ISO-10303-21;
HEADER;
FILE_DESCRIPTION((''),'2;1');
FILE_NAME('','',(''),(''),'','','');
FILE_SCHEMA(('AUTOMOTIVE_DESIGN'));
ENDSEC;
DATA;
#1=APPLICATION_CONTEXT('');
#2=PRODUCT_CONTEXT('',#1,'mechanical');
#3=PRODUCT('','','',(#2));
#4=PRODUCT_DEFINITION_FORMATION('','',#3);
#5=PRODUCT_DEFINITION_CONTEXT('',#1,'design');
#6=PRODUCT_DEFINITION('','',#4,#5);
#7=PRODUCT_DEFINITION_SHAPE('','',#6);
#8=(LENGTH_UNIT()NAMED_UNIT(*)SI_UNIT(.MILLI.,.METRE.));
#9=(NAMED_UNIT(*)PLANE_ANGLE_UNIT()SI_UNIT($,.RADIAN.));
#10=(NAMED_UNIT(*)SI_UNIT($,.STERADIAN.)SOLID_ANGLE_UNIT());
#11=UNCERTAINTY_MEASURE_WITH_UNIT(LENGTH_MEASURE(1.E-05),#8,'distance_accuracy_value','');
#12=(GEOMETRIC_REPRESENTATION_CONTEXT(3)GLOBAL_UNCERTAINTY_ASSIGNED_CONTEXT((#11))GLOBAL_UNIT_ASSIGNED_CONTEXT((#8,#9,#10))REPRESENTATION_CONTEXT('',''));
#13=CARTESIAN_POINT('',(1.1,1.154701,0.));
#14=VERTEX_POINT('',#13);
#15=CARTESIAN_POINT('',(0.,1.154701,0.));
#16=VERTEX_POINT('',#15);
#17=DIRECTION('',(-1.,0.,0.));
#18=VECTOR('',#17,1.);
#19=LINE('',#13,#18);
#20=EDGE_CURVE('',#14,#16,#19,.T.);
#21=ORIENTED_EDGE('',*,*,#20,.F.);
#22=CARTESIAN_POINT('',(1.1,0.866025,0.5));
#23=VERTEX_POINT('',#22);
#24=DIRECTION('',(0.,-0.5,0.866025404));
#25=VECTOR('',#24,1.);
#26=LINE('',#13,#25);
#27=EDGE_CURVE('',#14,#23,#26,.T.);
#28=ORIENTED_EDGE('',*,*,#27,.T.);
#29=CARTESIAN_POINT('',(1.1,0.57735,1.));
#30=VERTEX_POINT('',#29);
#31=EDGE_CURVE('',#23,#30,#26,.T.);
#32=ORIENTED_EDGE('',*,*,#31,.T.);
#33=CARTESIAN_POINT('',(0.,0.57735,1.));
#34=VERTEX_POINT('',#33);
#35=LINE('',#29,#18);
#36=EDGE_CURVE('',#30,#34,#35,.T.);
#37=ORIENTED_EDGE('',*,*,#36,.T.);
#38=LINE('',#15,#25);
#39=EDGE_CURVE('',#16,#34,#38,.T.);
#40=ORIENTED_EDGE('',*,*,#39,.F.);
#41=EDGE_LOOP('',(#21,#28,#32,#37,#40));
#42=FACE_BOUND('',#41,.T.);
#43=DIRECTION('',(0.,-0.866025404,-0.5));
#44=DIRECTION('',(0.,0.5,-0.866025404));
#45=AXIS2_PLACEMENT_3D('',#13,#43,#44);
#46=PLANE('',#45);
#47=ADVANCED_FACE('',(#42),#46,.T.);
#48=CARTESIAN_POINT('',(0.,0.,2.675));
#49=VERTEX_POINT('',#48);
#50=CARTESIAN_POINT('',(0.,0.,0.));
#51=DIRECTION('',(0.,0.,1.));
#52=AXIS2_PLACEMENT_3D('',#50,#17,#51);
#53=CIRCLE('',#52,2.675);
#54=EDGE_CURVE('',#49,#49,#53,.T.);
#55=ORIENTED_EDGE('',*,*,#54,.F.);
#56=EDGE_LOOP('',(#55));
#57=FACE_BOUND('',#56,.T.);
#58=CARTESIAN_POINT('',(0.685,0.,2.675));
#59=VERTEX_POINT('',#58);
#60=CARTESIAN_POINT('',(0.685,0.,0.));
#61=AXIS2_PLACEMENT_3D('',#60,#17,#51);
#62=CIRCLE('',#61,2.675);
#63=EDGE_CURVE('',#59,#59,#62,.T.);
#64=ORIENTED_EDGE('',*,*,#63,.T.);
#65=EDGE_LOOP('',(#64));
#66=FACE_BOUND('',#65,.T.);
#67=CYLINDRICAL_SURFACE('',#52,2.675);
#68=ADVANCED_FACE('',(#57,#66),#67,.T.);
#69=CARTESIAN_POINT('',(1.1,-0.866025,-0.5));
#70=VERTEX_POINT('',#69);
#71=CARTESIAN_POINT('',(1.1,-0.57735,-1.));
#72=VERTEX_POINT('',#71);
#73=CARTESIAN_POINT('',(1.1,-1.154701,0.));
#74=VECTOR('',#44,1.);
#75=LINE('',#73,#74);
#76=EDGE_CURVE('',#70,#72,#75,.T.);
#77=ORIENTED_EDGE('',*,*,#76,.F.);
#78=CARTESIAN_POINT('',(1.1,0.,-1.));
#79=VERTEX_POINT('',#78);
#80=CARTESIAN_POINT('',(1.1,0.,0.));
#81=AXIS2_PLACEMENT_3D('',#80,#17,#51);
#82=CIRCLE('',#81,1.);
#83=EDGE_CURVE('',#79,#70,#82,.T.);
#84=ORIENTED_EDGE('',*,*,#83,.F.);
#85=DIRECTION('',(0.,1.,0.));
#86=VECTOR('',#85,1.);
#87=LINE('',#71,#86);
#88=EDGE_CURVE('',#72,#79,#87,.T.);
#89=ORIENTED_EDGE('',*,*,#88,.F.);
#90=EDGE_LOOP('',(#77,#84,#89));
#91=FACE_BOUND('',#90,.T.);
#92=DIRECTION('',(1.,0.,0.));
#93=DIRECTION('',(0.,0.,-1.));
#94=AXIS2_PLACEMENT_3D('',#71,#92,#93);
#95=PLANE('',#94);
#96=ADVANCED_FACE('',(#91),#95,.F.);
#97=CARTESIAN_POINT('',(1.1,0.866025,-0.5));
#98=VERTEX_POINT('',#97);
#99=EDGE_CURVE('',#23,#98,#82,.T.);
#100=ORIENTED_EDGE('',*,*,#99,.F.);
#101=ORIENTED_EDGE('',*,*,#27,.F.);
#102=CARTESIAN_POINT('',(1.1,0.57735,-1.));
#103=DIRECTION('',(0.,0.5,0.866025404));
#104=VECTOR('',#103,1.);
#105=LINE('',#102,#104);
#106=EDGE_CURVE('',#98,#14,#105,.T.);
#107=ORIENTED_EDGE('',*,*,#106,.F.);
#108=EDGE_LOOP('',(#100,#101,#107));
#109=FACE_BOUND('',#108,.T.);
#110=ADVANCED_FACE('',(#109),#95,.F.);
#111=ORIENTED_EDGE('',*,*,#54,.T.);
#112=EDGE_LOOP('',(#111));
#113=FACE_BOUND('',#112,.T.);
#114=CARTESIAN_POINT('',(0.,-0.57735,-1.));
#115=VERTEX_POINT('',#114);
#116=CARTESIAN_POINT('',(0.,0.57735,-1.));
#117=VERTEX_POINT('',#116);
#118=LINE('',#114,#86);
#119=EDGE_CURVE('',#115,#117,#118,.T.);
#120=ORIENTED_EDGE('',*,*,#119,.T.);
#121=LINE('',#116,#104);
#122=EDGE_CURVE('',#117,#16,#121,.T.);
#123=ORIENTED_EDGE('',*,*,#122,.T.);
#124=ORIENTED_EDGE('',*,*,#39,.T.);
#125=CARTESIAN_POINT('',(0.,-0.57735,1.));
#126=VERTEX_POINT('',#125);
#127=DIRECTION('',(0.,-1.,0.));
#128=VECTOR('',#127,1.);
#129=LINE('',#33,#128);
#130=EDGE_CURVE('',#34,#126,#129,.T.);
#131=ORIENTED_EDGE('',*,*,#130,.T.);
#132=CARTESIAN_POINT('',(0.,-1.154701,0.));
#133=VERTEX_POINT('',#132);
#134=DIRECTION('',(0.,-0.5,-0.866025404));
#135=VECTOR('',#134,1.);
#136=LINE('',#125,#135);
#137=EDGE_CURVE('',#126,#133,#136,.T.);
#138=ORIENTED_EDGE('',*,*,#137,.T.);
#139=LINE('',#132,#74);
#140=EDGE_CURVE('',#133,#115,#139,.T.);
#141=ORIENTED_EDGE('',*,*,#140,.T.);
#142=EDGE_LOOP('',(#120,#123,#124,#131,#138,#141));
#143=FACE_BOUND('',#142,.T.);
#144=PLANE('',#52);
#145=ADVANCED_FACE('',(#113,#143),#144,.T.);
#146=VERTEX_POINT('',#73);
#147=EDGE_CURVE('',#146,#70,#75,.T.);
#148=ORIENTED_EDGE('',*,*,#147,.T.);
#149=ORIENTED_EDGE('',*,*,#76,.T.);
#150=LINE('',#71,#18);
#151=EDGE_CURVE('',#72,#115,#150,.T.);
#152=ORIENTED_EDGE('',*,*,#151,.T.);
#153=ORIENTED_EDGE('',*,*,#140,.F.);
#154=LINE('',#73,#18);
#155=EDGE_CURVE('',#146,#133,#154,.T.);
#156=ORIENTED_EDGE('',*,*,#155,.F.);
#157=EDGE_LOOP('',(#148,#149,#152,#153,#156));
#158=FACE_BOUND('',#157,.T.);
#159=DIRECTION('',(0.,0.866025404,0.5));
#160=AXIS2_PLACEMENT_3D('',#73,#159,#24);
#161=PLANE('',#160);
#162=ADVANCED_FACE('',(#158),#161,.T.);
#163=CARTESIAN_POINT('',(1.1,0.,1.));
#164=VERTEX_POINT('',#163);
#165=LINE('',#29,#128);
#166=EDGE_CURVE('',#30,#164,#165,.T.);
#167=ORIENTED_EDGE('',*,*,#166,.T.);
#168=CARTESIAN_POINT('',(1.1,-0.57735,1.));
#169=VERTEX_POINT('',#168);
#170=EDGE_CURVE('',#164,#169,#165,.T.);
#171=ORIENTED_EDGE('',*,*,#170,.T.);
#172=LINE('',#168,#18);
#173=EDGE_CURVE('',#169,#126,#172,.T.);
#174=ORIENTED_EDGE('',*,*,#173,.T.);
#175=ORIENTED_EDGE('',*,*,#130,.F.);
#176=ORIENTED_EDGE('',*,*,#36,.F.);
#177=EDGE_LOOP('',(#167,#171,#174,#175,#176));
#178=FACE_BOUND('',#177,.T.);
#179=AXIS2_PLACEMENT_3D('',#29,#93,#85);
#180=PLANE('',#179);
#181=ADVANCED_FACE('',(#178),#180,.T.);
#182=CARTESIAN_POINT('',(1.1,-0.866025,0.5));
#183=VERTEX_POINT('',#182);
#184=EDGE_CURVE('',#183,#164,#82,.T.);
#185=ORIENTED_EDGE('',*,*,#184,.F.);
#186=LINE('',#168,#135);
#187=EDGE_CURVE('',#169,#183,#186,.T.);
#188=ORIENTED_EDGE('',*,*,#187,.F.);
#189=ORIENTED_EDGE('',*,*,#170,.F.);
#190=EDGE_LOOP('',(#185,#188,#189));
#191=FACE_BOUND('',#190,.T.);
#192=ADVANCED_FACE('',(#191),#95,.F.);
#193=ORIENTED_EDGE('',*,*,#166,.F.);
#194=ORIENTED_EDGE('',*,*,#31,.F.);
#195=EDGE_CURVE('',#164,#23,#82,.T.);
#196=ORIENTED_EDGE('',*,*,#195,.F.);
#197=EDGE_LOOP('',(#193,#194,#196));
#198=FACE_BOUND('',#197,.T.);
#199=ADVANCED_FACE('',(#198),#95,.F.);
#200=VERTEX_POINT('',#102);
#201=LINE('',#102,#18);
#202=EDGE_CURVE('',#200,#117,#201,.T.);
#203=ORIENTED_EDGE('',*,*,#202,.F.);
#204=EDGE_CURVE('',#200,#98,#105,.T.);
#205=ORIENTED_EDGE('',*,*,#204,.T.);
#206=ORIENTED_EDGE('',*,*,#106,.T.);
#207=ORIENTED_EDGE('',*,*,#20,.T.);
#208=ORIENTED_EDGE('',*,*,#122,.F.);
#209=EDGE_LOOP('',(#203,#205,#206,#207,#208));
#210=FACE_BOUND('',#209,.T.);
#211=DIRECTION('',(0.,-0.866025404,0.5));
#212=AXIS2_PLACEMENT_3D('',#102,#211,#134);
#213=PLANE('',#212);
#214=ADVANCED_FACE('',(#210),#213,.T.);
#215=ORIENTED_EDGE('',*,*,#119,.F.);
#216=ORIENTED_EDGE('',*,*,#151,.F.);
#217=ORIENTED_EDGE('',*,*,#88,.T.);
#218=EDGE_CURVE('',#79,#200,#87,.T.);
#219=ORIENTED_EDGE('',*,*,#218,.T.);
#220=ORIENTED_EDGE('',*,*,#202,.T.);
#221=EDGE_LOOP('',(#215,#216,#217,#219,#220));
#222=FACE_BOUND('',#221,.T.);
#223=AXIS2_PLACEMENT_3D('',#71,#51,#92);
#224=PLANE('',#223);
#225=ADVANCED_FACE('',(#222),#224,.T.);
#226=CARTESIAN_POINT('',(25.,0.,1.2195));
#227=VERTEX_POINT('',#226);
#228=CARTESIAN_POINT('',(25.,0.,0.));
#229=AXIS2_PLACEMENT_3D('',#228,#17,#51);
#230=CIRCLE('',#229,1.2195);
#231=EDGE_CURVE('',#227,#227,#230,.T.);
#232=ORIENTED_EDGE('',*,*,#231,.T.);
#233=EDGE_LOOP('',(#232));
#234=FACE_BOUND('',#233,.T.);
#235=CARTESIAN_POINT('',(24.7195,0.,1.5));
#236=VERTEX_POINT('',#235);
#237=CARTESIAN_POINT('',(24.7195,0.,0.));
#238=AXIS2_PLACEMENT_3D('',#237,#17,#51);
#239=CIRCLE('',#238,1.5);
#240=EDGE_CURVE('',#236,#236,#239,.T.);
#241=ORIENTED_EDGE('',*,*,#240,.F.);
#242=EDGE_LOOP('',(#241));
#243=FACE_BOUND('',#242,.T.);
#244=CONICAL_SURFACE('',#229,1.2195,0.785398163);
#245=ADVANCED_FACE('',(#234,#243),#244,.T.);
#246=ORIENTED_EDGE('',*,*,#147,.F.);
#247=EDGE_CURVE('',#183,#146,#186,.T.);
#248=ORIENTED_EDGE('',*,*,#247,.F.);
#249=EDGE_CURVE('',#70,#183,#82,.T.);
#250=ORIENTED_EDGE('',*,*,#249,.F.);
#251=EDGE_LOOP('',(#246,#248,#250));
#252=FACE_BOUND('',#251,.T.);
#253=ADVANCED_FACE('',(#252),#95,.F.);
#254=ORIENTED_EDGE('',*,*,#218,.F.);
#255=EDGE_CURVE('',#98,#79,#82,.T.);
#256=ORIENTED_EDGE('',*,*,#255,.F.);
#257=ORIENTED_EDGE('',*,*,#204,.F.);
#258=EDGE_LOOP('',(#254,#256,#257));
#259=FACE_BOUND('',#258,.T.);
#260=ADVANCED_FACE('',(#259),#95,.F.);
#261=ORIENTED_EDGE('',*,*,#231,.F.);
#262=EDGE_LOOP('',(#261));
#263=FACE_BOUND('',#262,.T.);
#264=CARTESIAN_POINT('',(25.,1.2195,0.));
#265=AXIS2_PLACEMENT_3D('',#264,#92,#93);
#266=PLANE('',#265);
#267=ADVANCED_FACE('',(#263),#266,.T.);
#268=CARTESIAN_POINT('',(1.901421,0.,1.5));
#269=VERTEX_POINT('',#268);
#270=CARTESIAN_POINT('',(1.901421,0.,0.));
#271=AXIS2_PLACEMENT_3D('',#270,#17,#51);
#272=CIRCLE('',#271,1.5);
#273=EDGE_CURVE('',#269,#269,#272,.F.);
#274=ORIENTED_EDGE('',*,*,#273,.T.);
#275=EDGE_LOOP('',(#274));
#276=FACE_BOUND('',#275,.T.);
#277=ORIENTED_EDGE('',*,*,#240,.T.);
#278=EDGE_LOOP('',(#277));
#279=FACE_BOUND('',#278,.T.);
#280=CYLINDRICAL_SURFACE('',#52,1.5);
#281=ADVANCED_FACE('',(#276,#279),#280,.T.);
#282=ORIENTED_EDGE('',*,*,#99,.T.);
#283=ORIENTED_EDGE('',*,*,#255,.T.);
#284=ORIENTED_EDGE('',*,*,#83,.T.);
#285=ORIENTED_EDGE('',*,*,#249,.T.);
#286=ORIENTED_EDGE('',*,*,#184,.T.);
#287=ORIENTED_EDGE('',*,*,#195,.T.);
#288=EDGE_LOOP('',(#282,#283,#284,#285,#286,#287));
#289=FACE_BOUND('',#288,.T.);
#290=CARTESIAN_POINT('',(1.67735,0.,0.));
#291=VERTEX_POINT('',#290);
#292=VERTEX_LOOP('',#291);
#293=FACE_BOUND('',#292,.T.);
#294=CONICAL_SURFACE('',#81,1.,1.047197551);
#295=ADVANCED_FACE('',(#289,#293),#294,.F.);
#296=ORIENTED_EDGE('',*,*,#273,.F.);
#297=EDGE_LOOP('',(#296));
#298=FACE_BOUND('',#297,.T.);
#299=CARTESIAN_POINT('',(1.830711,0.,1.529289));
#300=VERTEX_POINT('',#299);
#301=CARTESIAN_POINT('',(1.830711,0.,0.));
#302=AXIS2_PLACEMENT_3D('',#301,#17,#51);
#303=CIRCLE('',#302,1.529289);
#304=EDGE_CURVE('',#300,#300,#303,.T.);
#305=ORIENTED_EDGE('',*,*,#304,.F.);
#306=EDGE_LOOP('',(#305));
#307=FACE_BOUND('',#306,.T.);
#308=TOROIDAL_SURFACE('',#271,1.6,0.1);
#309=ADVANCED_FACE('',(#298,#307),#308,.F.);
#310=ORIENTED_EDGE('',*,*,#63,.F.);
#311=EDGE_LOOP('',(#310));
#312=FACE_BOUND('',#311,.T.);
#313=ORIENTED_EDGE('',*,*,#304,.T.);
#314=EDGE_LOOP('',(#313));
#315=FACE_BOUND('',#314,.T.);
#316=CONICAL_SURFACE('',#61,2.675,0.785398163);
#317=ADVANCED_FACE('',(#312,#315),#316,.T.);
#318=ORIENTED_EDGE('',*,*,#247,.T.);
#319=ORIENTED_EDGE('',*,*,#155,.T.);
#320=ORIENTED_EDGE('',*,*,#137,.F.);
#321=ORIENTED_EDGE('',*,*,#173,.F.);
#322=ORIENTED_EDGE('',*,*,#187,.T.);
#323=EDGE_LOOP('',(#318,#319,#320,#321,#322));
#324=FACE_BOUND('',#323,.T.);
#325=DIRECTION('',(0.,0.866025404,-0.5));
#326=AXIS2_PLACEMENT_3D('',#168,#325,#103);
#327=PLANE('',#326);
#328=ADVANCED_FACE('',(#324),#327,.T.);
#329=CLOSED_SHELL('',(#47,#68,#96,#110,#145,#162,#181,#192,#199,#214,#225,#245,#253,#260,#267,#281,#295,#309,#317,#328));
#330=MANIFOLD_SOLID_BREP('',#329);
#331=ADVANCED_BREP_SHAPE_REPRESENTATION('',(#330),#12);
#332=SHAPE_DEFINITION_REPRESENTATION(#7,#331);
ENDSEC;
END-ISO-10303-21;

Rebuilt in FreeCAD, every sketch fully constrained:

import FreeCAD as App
import Part
import Sketcher
Q = App.Units.Quantity


def edges_at(feature, points):
    """Names of the edges that pass closest to the given points."""
    edges = feature.Shape.Edges
    near = lambda p: min(range(len(edges)), key=lambda i: edges[i].distToShape(Part.Vertex(*p))[0])
    return sorted({f"Edge{near(p) + 1}" for p in points})


def add_polygon(sketch, points):
    """Adds a closed chain of lines whose ends are joined by coincident constraints."""
    first, n = sketch.GeometryCount, len(points)
    for a, b in zip(points, points[1:] + points[:1]):
        sketch.addGeometry(Part.LineSegment(App.Vector(*a, 0), App.Vector(*b, 0)), False)
    for i in range(n):
        sketch.addConstraint(Sketcher.Constraint("Coincident", first + i, 2, first + (i + 1) % n, 1))

doc = App.newDocument("Part")
body = doc.addObject("PartDesign::Body", "Body")

sketch1 = doc.addObject("Sketcher::SketchObject", "Sketch")
body.addObject(sketch1)
sketch1.AttachmentSupport = (doc.XY_Plane, [""])
sketch1.MapMode = "FlatFace"
add_polygon(sketch1, [(0, 2.67), (0, 0), (25, 0), (25, 1.22), (24.72, 1.5), (1.86, 1.5), (0.69, 2.67)])
sketch1.addConstraint([
    Sketcher.Constraint("Vertical", 0),
    Sketcher.Constraint("Horizontal", 1),
    Sketcher.Constraint("Vertical", 2),
    Sketcher.Constraint("Horizontal", 4),
    Sketcher.Constraint("Horizontal", 6),
    Sketcher.Constraint("Coincident", 0, 2, -1, 1),
    Sketcher.Constraint("Parallel", 3, 5),
    Sketcher.Constraint("DistanceX", 1, 1, 1, 2, Q("25 mm")),
    Sketcher.Constraint("Angle", 3, Q("135 deg")),
    Sketcher.Constraint("DistanceY", -1, 1, 3, 2, Q("1.5 mm")),
    Sketcher.Constraint("DistanceX", 6, 2, 6, 1, Q("0.685 mm")),
    Sketcher.Constraint("DistanceY", 0, 2, 0, 1, Q("2.675 mm")),
    Sketcher.Constraint("DistanceX", 4, 2, 4, 1, Q("22.8595 mm")),
])
revolution = doc.addObject("PartDesign::Revolution", "Revolution")
body.addObject(revolution)
revolution.Profile = sketch1
revolution.ReferenceAxis = (sketch1, ["H_Axis"])
revolution.Angle = 360
doc.recompute()

fillet = doc.addObject("PartDesign::Fillet", "Fillet")
body.addObject(fillet)
fillet.Base = (revolution, edges_at(revolution, [(1.86, -1.5, 0)]))
fillet.Radius = 0.1

sketch2 = doc.addObject("Sketcher::SketchObject", "Sketch001")
body.addObject(sketch2)
sketch2.AttachmentSupport = (doc.XY_Plane, [""])
sketch2.MapMode = "FlatFace"
add_polygon(sketch2, [(1.1, 1), (0, 1), (0, 0), (1.7, 0)])
sketch2.addConstraint([
    Sketcher.Constraint("Horizontal", 0),
    Sketcher.Constraint("Vertical", 1),
    Sketcher.Constraint("Horizontal", 2),
    Sketcher.Constraint("Coincident", 1, 2, -1, 1),
    Sketcher.Constraint("DistanceY", 1, 2, 1, 1, Q("1 mm")),
    Sketcher.Constraint("Angle", 3, Q("120 deg")),
    Sketcher.Constraint("DistanceX", 0, 2, 0, 1, Q("1.1 mm")),
])
groove = doc.addObject("PartDesign::Groove", "Groove")
body.addObject(groove)
groove.Profile = sketch2
groove.ReferenceAxis = (sketch2, ["H_Axis"])
groove.Angle = 360

sketch3 = doc.addObject("Sketcher::SketchObject", "Sketch002")
body.addObject(sketch3)
sketch3.AttachmentSupport = (doc.YZ_Plane, [""])
sketch3.MapMode = "FlatFace"
add_polygon(sketch3, [(0.6, -1), (-0.6, -1), (-1.2, 0), (-0.6, 1), (0.6, 1), (1.2, 0)])
sketch3.addConstraint([
    Sketcher.Constraint("Horizontal", 0),
    Sketcher.Constraint("Horizontal", 3),
    Sketcher.Constraint("Symmetric", 0, 2, 3, 2, -1, 1),
    Sketcher.Constraint("Symmetric", 1, 2, 4, 2, -1, 1),
    Sketcher.Constraint("PointOnObject", 1, 2, -1),
    Sketcher.Constraint("Parallel", 2, 5),
    Sketcher.Constraint("Vertical", 0, 2, 2, 2),
    Sketcher.Constraint("Angle", 1, Q("120 deg")),
    Sketcher.Constraint("DistanceY", 0, 2, -1, 1, Q("1 mm")),
    Sketcher.Constraint("DistanceX", 0, 2, 0, 1, Q("1.154701 mm")),
])
pocket1 = doc.addObject("PartDesign::Pocket", "Pocket")
body.addObject(pocket1)
pocket1.Profile = sketch3
pocket1.Length = 1.1
pocket1.Reversed = True

doc.recompute()
